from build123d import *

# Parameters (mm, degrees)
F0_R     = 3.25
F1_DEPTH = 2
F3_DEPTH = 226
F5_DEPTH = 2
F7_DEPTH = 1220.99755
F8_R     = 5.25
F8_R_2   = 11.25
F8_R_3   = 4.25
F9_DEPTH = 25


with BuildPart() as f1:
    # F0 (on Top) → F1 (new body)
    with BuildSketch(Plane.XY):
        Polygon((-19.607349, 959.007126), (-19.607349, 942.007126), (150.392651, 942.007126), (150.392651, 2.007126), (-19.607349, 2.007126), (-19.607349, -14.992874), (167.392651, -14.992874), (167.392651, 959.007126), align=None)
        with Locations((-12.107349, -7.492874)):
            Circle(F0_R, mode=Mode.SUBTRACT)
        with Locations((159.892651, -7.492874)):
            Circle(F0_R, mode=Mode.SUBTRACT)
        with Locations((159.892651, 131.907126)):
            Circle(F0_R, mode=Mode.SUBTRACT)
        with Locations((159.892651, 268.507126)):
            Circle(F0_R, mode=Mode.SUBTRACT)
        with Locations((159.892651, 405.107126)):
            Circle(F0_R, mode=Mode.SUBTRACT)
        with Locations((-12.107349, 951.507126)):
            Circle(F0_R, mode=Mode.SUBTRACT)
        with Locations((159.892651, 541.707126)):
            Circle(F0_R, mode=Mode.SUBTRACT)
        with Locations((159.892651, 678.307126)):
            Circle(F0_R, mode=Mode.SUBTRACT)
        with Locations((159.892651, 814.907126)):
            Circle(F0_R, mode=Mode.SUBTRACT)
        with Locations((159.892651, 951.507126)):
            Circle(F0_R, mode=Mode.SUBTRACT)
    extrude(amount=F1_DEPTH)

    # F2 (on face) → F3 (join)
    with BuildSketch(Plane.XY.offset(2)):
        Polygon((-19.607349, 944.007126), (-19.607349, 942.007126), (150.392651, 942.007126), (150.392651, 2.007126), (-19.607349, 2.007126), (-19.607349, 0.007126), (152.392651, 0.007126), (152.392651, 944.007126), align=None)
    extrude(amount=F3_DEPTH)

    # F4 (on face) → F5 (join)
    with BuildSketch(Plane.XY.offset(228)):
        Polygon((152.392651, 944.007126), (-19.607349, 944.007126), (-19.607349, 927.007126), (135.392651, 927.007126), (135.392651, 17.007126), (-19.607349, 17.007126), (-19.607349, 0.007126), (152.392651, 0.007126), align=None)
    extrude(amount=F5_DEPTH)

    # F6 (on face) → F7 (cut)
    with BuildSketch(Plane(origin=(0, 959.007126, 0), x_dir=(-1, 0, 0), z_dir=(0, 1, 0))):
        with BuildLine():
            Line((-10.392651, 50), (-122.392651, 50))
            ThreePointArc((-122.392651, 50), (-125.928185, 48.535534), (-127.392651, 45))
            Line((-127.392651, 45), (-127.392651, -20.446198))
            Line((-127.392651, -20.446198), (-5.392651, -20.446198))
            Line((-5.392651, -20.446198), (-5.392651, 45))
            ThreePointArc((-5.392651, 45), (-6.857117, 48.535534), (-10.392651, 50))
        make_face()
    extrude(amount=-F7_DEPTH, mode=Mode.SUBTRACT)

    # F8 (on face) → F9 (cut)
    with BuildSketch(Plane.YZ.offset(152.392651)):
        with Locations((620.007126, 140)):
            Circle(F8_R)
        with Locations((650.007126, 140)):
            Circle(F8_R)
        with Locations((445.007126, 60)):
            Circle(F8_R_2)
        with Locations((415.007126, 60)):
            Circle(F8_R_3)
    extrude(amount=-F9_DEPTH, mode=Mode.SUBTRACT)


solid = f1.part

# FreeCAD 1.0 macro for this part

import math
import FreeCAD as App
import Part
import Sketcher

V = App.Vector
Q = App.Units.Quantity


def add_polygon(sketch, points):
    """Adds a closed chain of lines whose ends are joined by coincident constraints."""
    first, n = sketch.GeometryCount, len(points)
    for a, b in zip(points, points[1:] + points[:1]):
        sketch.addGeometry(Part.LineSegment(App.Vector(*a, 0), App.Vector(*b, 0)), False)
    for i in range(n):
        sketch.addConstraint(Sketcher.Constraint("Coincident", first + i, 2, first + (i + 1) % n, 1))

doc = App.newDocument("Part")
params = doc.addObject("Spreadsheet::Sheet", "Params")
for row, (alias, value) in enumerate([
    ("sketch1_diameter", "6.5 mm"),
    ("sketch1_width", "170 mm"),
    ("sketch1_width2", "187 mm"),
    ("sketch1_height", "17 mm"),
    ("sketch1_height2", "940 mm"),
    ("pad1_length", "2 mm"),
    ("sketch2_width", "170 mm"),
    ("sketch2_width2", "172 mm"),
    ("sketch2_height", "2 mm"),
    ("sketch2_height2", "940 mm"),
    ("pad2_length", "226 mm"),
    ("sketch3_width", "172 mm"),
    ("sketch3_width2", "155 mm"),
    ("sketch3_height", "17 mm"),
    ("sketch3_height2", "910 mm"),
    ("pad3_length", "2 mm"),
    ("sketch4_radius", "5 mm"),
    ("sketch4_width", "112 mm"),
    ("pocket1_length", "1220.99755 mm"),
    ("sketch5_diameter", "10.5 mm"),
    ("sketch5_diameter2", "22.5 mm"),
    ("sketch5_diameter3", "8.5 mm"),
    ("pocket2_length", "25 mm"),
], start=1):
    params.set(f"A{row}", alias)
    params.set(f"B{row}", "=" + value)
    params.setAlias(f"B{row}", alias)

body = doc.addObject("PartDesign::Body", "Body")

sketch1 = body.newObject("Sketcher::SketchObject", "Sketch")
sketch1.AttachmentSupport = (doc.getObject("XY_Plane"), [""])
sketch1.MapMode = "FlatFace"
add_polygon(sketch1, [(-19.6, 959), (-19.6, 942), (150.4, 942), (150.4, 2), (-19.6, 2), (-19.6, -15), (167.4, -15), (167.4, 959)])
sketch1.addGeometry(Part.Circle(V(-12.1, -7.5, 0), V(0, 0, 1), 3.2), False)
sketch1.addGeometry(Part.Circle(V(159.9, -7.5, 0), V(0, 0, 1), 3.2), False)
sketch1.addGeometry(Part.Circle(V(159.9, 131.9, 0), V(0, 0, 1), 3.2), False)
sketch1.addGeometry(Part.Circle(V(159.9, 268.5, 0), V(0, 0, 1), 3.2), False)
sketch1.addGeometry(Part.Circle(V(159.9, 405.1, 0), V(0, 0, 1), 3.2), False)
sketch1.addGeometry(Part.Circle(V(-12.1, 951.5, 0), V(0, 0, 1), 3.2), False)
sketch1.addGeometry(Part.Circle(V(159.9, 541.7, 0), V(0, 0, 1), 3.2), False)
sketch1.addGeometry(Part.Circle(V(159.9, 678.3, 0), V(0, 0, 1), 3.2), False)
sketch1.addGeometry(Part.Circle(V(159.9, 814.9, 0), V(0, 0, 1), 3.2), False)
sketch1.addGeometry(Part.Circle(V(159.9, 951.5, 0), V(0, 0, 1), 3.2), False)
sketch1.addConstraint([
    Sketcher.Constraint("Vertical", 0),
    Sketcher.Constraint("Horizontal", 1),
    Sketcher.Constraint("Vertical", 2),
    Sketcher.Constraint("Horizontal", 3),
    Sketcher.Constraint("Vertical", 4),
    Sketcher.Constraint("Horizontal", 5),
    Sketcher.Constraint("Vertical", 6),
    Sketcher.Constraint("Horizontal", 7),
    Sketcher.Constraint("Equal", 8, 9),
    Sketcher.Constraint("Equal", 9, 10),
    Sketcher.Constraint("Equal", 10, 11),
    Sketcher.Constraint("Equal", 11, 12),
    Sketcher.Constraint("Equal", 12, 13),
    Sketcher.Constraint("Equal", 13, 14),
    Sketcher.Constraint("Equal", 14, 15),
    Sketcher.Constraint("Equal", 15, 16),
    Sketcher.Constraint("Equal", 16, 17),
    Sketcher.Constraint("Horizontal", 8, 3, 9, 3),
    Sketcher.Constraint("Horizontal", 13, 3, 17, 3),
    Sketcher.Constraint("Vertical", 9, 3, 10, 3),
    Sketcher.Constraint("Vertical", 10, 3, 11, 3),
    Sketcher.Constraint("Vertical", 11, 3, 12, 3),
    Sketcher.Constraint("Vertical", 8, 3, 13, 3),
    Sketcher.Constraint("Vertical", 12, 3, 14, 3),
    Sketcher.Constraint("Vertical", 14, 3, 15, 3),
    Sketcher.Constraint("Vertical", 15, 3, 16, 3),
    Sketcher.Constraint("Vertical", 16, 3, 17, 3),
    Sketcher.Constraint("Vertical", 0, 2, 3, 2),
    Sketcher.Constraint("Equal", 0, 4),
    Sketcher.Constraint("Diameter", 8, Q("6.5 mm")),
    Sketcher.Constraint("DistanceX", 1, 1, 1, 2, Q("170 mm")),
    Sketcher.Constraint("DistanceX", 5, 1, 5, 2, Q("187 mm")),
    Sketcher.Constraint("DistanceY", 0, 2, 0, 1, Q("17 mm")),
    Sketcher.Constraint("DistanceY", 2, 2, 2, 1, Q("940 mm")),
    Sketcher.Constraint("DistanceX", 8, 3, 9, 3, Q("172 mm")),
    Sketcher.Constraint("DistanceY", 9, 3, 11, 3, Q("276 mm")),
    Sketcher.Constraint("DistanceY", 11, 3, 13, 3, Q("683 mm")),
    Sketcher.Constraint("DistanceY", 9, 3, 10, 3, Q("139.4 mm")),
    Sketcher.Constraint("DistanceY", 11, 3, 12, 3, Q("136.6 mm")),
    Sketcher.Constraint("DistanceY", 12, 3, 14, 3, Q("136.6 mm")),
    Sketcher.Constraint("DistanceY", 14, 3, 15, 3, Q("136.6 mm")),
    Sketcher.Constraint("DistanceY", 15, 3, 16, 3, Q("136.6 mm")),
    Sketcher.Constraint("DistanceX", 0, 2, 13, 3, Q("7.5 mm")),
    Sketcher.Constraint("DistanceY", 0, 2, 13, 3, Q("9.5 mm")),
    Sketcher.Constraint("DistanceX", 8, 3, -1, 1, Q("12.107349 mm")),
    Sketcher.Constraint("DistanceY", 8, 3, -1, 1, Q("7.492874 mm")),
])
sketch1.setExpression("Constraints[37]", "Params.sketch1_diameter")
sketch1.setExpression("Constraints[38]", "Params.sketch1_width")
sketch1.setExpression("Constraints[39]", "Params.sketch1_width2")
sketch1.setExpression("Constraints[40]", "Params.sketch1_height")
sketch1.setExpression("Constraints[41]", "Params.sketch1_height2")
pad1 = body.newObject("PartDesign::Pad", "Pad")
pad1.Profile = sketch1
pad1.setExpression("Length", "Params.pad1_length")

sketch2 = body.newObject("Sketcher::SketchObject", "Sketch001")
sketch2.AttachmentSupport = (doc.getObject("XY_Plane"), [""])
sketch2.MapMode = "FlatFace"
sketch2.AttachmentOffset = App.Placement(V(0, 0, 2), App.Rotation())
add_polygon(sketch2, [(-19.6, 944), (-19.6, 942), (150.4, 942), (150.4, 2), (-19.6, 2), (-19.6, 0), (152.4, 0), (152.4, 944)])
sketch2.addConstraint([
    Sketcher.Constraint("Vertical", 0),
    Sketcher.Constraint("Horizontal", 1),
    Sketcher.Constraint("Vertical", 2),
    Sketcher.Constraint("Horizontal", 3),
    Sketcher.Constraint("Vertical", 4),
    Sketcher.Constraint("Horizontal", 5),
    Sketcher.Constraint("Vertical", 6),
    Sketcher.Constraint("Horizontal", 7),
    Sketcher.Constraint("Vertical", 0, 2, 3, 2),
    Sketcher.Constraint("Equal", 0, 4),
    Sketcher.Constraint("DistanceX", 1, 1, 1, 2, Q("170 mm")),
    Sketcher.Constraint("DistanceX", 5, 1, 5, 2, Q("172 mm")),
    Sketcher.Constraint("DistanceY", 0, 2, 0, 1, Q("2 mm")),
    Sketcher.Constraint("DistanceY", 2, 2, 2, 1, Q("940 mm")),
    Sketcher.Constraint("DistanceX", 0, 2, -1, 1, Q("19.607349 mm")),
    Sketcher.Constraint("DistanceY", -1, 1, 0, 2, Q("942.007126 mm")),
])
sketch2.setExpression("Constraints[18]", "Params.sketch2_width")
sketch2.setExpression("Constraints[19]", "Params.sketch2_width2")
sketch2.setExpression("Constraints[20]", "Params.sketch2_height")
sketch2.setExpression("Constraints[21]", "Params.sketch2_height2")
pad2 = body.newObject("PartDesign::Pad", "Pad001")
pad2.Profile = sketch2
pad2.setExpression("Length", "Params.pad2_length")

sketch3 = body.newObject("Sketcher::SketchObject", "Sketch002")
sketch3.AttachmentSupport = (doc.getObject("XY_Plane"), [""])
sketch3.MapMode = "FlatFace"
sketch3.AttachmentOffset = App.Placement(V(0, 0, 228), App.Rotation())
add_polygon(sketch3, [(152, 944), (-20, 944), (-20, 927), (135, 927), (135, 17), (-20, 17), (-20, 0), (152, 0)])
sketch3.addConstraint([
    Sketcher.Constraint("Horizontal", 0),
    Sketcher.Constraint("Vertical", 1),
    Sketcher.Constraint("Horizontal", 2),
    Sketcher.Constraint("Vertical", 3),
    Sketcher.Constraint("Horizontal", 4),
    Sketcher.Constraint("Vertical", 5),
    Sketcher.Constraint("Horizontal", 6),
    Sketcher.Constraint("Vertical", 7),
    Sketcher.Constraint("Vertical", 1, 2, 4, 2),
    Sketcher.Constraint("Equal", 1, 5),
    Sketcher.Constraint("DistanceX", 0, 2, 0, 1, Q("172 mm")),
    Sketcher.Constraint("DistanceX", 2, 1, 2, 2, Q("155 mm")),
    Sketcher.Constraint("DistanceY", 1, 2, 1, 1, Q("17 mm")),
    Sketcher.Constraint("DistanceY", 3, 2, 3, 1, Q("910 mm")),
    Sketcher.Constraint("DistanceX", 0, 2, -1, 1, Q("19.607349 mm")),
    Sketcher.Constraint("DistanceY", -1, 1, 0, 2, Q("944.007126 mm")),
])
sketch3.setExpression("Constraints[18]", "Params.sketch3_width")
sketch3.setExpression("Constraints[19]", "Params.sketch3_width2")
sketch3.setExpression("Constraints[20]", "Params.sketch3_height")
sketch3.setExpression("Constraints[21]", "Params.sketch3_height2")
pad3 = body.newObject("PartDesign::Pad", "Pad002")
pad3.Profile = sketch3
pad3.setExpression("Length", "Params.pad3_length")

sketch4 = body.newObject("Sketcher::SketchObject", "Sketch003")
sketch4.AttachmentSupport = (doc.getObject("XZ_Plane"), [""])
sketch4.MapMode = "FlatFace"
sketch4.AttachmentOffset = App.Placement(V(0, 0, -959.007126), App.Rotation())
sketch4.addGeometry([
    Part.LineSegment(V(10.4, 50, 0), V(122.4, 50, 0)),
    Part.ArcOfCircle(Part.Circle(V(122.4, 45, 0), V(0, 0, 1), 5), math.radians(0), math.radians(90)),
    Part.LineSegment(V(127.4, 45, 0), V(127.4, -20.4, 0)),
    Part.LineSegment(V(127.4, -20.4, 0), V(5.4, -20.4, 0)),
    Part.LineSegment(V(5.4, -20.4, 0), V(5.4, 45, 0)),
    Part.ArcOfCircle(Part.Circle(V(10.4, 45, 0), V(0, 0, 1), 5), math.radians(90), math.radians(180)),
], False)
sketch4.addConstraint([
    Sketcher.Constraint("Tangent", 0, 2, 1, 2),
    Sketcher.Constraint("Tangent", 1, 1, 2, 1),
    Sketcher.Constraint("Coincident", 2, 2, 3, 1),
    Sketcher.Constraint("Coincident", 3, 2, 4, 1),
    Sketcher.Constraint("Tangent", 4, 2, 5, 2),
    Sketcher.Constraint("Tangent", 5, 1, 0, 1),
    Sketcher.Constraint("Horizontal", 0),
    Sketcher.Constraint("Vertical", 2),
    Sketcher.Constraint("Horizontal", 3),
    Sketcher.Constraint("Vertical", 4),
    Sketcher.Constraint("Equal", 1, 5),
    Sketcher.Constraint("Radius", 1, Q("5 mm")),
    Sketcher.Constraint("DistanceX", 0, 1, 0, 2, Q("112 mm")),
    Sketcher.Constraint("DistanceY", -1, 1, 1, 3, Q("45 mm")),
    Sketcher.Constraint("DistanceY", 2, 2, 1, 3, Q("65.446198 mm")),
    Sketcher.Constraint("DistanceX", -1, 1, 1, 3, Q("122.392651 mm")),
])
sketch4.setExpression("Constraints[11]", "Params.sketch4_radius")
sketch4.setExpression("Constraints[12]", "Params.sketch4_width")
pocket1 = body.newObject("PartDesign::Pocket", "Pocket")
pocket1.Profile = sketch4
pocket1.setExpression("Length", "Params.pocket1_length")
pocket1.Reversed = True

sketch5 = body.newObject("Sketcher::SketchObject", "Sketch004")
sketch5.AttachmentSupport = (doc.getObject("YZ_Plane"), [""])
sketch5.MapMode = "FlatFace"
sketch5.AttachmentOffset = App.Placement(V(0, 0, 152.392651), App.Rotation())
sketch5.addGeometry([
    Part.Circle(V(620, 140, 0), V(0, 0, 1), 5.2),
    Part.Circle(V(650, 140, 0), V(0, 0, 1), 5.2),
    Part.Circle(V(445, 60, 0), V(0, 0, 1), 11.2),
    Part.Circle(V(415, 60, 0), V(0, 0, 1), 4.2),
], False)
sketch5.addConstraint([
    Sketcher.Constraint("Equal", 0, 1),
    Sketcher.Constraint("Horizontal", 0, 3, 1, 3),
    Sketcher.Constraint("Horizontal", 2, 3, 3, 3),
    Sketcher.Constraint("Diameter", 0, Q("10.5 mm")),
    Sketcher.Constraint("Diameter", 2, Q("22.5 mm")),
    Sketcher.Constraint("Diameter", 3, Q("8.5 mm")),
    Sketcher.Constraint("DistanceY", -1, 1, 0, 3, Q("140 mm")),
    Sketcher.Constraint("DistanceY", -1, 1, 2, 3, Q("60 mm")),
    Sketcher.Constraint("DistanceX", 0, 3, 1, 3, Q("30 mm")),
    Sketcher.Constraint("DistanceX", 2, 3, 0, 3, Q("175 mm")),
    Sketcher.Constraint("DistanceX", 3, 3, 2, 3, Q("30 mm")),
    Sketcher.Constraint("DistanceX", -1, 1, 0, 3, Q("620.007126 mm")),
])
sketch5.setExpression("Constraints[3]", "Params.sketch5_diameter")
sketch5.setExpression("Constraints[4]", "Params.sketch5_diameter2")
sketch5.setExpression("Constraints[5]", "Params.sketch5_diameter3")
pocket2 = body.newObject("PartDesign::Pocket", "Pocket001")
pocket2.Profile = sketch5
pocket2.setExpression("Length", "Params.pocket2_length")

doc.recompute()
